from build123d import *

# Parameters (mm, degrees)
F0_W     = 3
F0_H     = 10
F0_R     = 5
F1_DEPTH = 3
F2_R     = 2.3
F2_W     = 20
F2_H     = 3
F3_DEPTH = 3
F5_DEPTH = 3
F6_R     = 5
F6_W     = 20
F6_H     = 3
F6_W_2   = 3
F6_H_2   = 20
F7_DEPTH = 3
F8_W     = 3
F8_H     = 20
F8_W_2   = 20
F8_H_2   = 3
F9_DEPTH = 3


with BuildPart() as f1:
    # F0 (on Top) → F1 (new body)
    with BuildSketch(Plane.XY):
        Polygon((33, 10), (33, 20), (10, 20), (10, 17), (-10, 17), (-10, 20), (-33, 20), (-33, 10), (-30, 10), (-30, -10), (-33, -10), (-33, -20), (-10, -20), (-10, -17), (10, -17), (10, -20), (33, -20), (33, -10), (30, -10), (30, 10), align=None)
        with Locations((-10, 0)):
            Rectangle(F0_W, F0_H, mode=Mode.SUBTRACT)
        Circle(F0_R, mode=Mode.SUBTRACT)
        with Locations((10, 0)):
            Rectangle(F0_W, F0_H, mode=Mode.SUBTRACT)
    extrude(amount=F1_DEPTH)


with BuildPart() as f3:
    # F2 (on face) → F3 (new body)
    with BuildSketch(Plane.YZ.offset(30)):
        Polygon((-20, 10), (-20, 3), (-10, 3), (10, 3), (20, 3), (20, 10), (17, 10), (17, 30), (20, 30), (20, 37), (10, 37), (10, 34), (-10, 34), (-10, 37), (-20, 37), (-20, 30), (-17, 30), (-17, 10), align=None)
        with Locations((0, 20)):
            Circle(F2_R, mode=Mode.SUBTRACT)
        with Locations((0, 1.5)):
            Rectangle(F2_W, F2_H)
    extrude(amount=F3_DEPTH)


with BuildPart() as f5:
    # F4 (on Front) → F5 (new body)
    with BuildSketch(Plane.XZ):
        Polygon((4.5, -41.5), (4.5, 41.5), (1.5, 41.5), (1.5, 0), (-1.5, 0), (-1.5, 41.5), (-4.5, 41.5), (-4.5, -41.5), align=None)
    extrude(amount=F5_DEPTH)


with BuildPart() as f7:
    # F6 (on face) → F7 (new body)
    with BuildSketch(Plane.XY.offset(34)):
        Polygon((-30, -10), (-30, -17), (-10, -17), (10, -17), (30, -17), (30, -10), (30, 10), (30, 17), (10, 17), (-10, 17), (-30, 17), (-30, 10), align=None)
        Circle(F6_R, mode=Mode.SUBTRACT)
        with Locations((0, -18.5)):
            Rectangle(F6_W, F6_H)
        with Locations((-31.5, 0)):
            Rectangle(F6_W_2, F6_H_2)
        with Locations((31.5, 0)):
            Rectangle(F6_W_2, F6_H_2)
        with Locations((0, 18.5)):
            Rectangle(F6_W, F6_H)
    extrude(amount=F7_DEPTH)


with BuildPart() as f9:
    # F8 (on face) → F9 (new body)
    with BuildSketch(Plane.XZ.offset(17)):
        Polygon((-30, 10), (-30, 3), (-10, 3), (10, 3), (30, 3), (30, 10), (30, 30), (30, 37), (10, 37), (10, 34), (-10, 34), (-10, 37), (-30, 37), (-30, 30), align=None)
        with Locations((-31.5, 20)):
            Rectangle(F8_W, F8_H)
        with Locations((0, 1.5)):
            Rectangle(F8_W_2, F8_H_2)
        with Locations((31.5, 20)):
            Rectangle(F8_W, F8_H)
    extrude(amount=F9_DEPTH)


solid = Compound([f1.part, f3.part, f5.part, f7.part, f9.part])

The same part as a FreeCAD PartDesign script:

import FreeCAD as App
import Part
import Sketcher
from FreeCAD import Vector


def add_polygon(sketch, points):
    """Adds a closed chain of lines whose ends are joined by coincident constraints."""
    first, n = sketch.GeometryCount, len(points)
    for a, b in zip(points, points[1:] + points[:1]):
        sketch.addGeometry(Part.LineSegment(App.Vector(*a, 0), App.Vector(*b, 0)), False)
    for i in range(n):
        sketch.addConstraint(Sketcher.Constraint("Coincident", first + i, 2, first + (i + 1) % n, 1))

doc = App.newDocument("Part")
params = doc.addObject("Spreadsheet::Sheet", "Params")
for row, (alias, value) in enumerate([
    ("sketch1_diameter", "10 mm"),
    ("sketch1_width", "23 mm"),
    ("sketch1_width2", "20 mm"),
    ("sketch1_width3", "3 mm"),
    ("sketch1_height", "10 mm"),
    ("pad1_length", "3 mm"),
    ("sketch2_diameter", "4.6 mm"),
    ("sketch2_width", "10 mm"),
    ("sketch2_width2", "20 mm"),
    ("sketch2_width3", "3 mm"),
    ("sketch2_height", "7 mm"),
    ("pad2_length", "3 mm"),
    ("sketch3_width", "3 mm"),
    ("sketch3_height", "83 mm"),
    ("pad3_length", "3 mm"),
    ("sketch4_diameter", "10 mm"),
    ("sketch4_width", "20 mm"),
    ("sketch4_width2", "3 mm"),
    ("sketch4_height", "7 mm"),
    ("pad4_length", "3 mm"),
    ("sketch5_width", "20 mm"),
    ("sketch5_width2", "3 mm"),
    ("sketch5_height", "7 mm"),
    ("pad5_length", "3 mm"),
], start=1):
    params.set(f"A{row}", alias)
    params.set(f"B{row}", "=" + value)
    params.setAlias(f"B{row}", alias)

body = doc.addObject("PartDesign::Body", "Body")

sketch1 = body.newObject("Sketcher::SketchObject", "Sketch")
sketch1.AttachmentSupport = (doc.getObject("XY_Plane"), [""])
sketch1.MapMode = "FlatFace"
add_polygon(sketch1, [(33, 10), (33, 20), (10, 20), (10, 17), (-10, 17), (-10, 20), (-33, 20), (-33, 10), (-30, 10), (-30, -10), (-33, -10), (-33, -20), (-10, -20), (-10, -17), (10, -17), (10, -20), (33, -20), (33, -10), (30, -10), (30, 10)])
add_polygon(sketch1, [(-8.5, -5), (-11.5, -5), (-11.5, 5), (-8.5, 5)])
sketch1.addGeometry(Part.Circle(Vector(0, 0, 0), Vector(0, 0, 1), 5), False)
add_polygon(sketch1, [(11.5, -5), (8.5, -5), (8.5, 5), (11.5, 5)])
sketch1.addConstraint([
    Sketcher.Constraint("Vertical", 0),
    Sketcher.Constraint("Horizontal", 1),
    Sketcher.Constraint("Vertical", 2),
    Sketcher.Constraint("Horizontal", 3),
    Sketcher.Constraint("Vertical", 4),
    Sketcher.Constraint("Horizontal", 5),
    Sketcher.Constraint("Vertical", 6),
    Sketcher.Constraint("Horizontal", 7),
    Sketcher.Constraint("Vertical", 8),
    Sketcher.Constraint("Horizontal", 9),
    Sketcher.Constraint("Vertical", 10),
    Sketcher.Constraint("Horizontal", 11),
    Sketcher.Constraint("Vertical", 12),
    Sketcher.Constraint("Horizontal", 13),
    Sketcher.Constraint("Vertical", 14),
    Sketcher.Constraint("Horizontal", 15),
    Sketcher.Constraint("Vertical", 16),
    Sketcher.Constraint("Horizontal", 17),
    Sketcher.Constraint("Vertical", 18),
    Sketcher.Constraint("Horizontal", 19),
    Sketcher.Constraint("Horizontal", 20),
    Sketcher.Constraint("Vertical", 21),
    Sketcher.Constraint("Horizontal", 22),
    Sketcher.Constraint("Vertical", 23),
    Sketcher.Constraint("Horizontal", 25),
    Sketcher.Constraint("Vertical", 26),
    Sketcher.Constraint("Horizontal", 27),
    Sketcher.Constraint("Vertical", 28),
    Sketcher.Constraint("Coincident", 24, 3, -1, 1),
    Sketcher.Constraint("Symmetric", 0, 2, 10, 2, -1, 1),
    Sketcher.Constraint("Symmetric", 2, 2, 12, 2, -1, 1),
    Sketcher.Constraint("Symmetric", 4, 2, 14, 2, -1, 1),
    Sketcher.Constraint("Symmetric", 6, 2, 16, 2, -1, 1),
    Sketcher.Constraint("Symmetric", 8, 2, 18, 2, -1, 1),
    Sketcher.Constraint("Symmetric", 22, 2, 25, 2, -1, 1),
    Sketcher.Constraint("Symmetric", 20, 2, 27, 2, -1, 1),
    Sketcher.Constraint("Symmetric", 1, 2, 4, 2, -2),
    Sketcher.Constraint("Symmetric", 9, 2, 16, 2, -2),
    Sketcher.Constraint("Horizontal", 23, 2, 25, 2),
    Sketcher.Constraint("Equal", 19, 20),
    Sketcher.Constraint("Equal", 27, 2),
    Sketcher.Constraint("Equal", 13, 8),
    Sketcher.Constraint("Equal", 16, 21),
    Sketcher.Constraint("Diameter", 24, 10.0),
    Sketcher.Constraint("DistanceX", 1, 2, 1, 1, 23.0),
    Sketcher.Constraint("DistanceX", 3, 2, 3, 1, 20.0),
    Sketcher.Constraint("DistanceX", 7, 1, 7, 2, 3.0),
    Sketcher.Constraint("DistanceY", 0, 1, 0, 2, 10.0),
    Sketcher.Constraint("DistanceX", 23, 2, 25, 2, 17.0),
])
sketch1.setExpression("Constraints[71]", "Params.sketch1_diameter")
sketch1.setExpression("Constraints[72]", "Params.sketch1_width")
sketch1.setExpression("Constraints[73]", "Params.sketch1_width2")
sketch1.setExpression("Constraints[74]", "Params.sketch1_width3")
sketch1.setExpression("Constraints[75]", "Params.sketch1_height")
pad1 = body.newObject("PartDesign::Pad", "Pad")
pad1.Profile = sketch1
pad1.setExpression("Length", "Params.pad1_length")
body2 = doc.addObject("PartDesign::Body", "Body001")

sketch2 = body2.newObject("Sketcher::SketchObject", "Sketch001")
sketch2.AttachmentSupport = (doc.getObject("YZ_Plane001"), [""])
sketch2.MapMode = "FlatFace"
sketch2.AttachmentOffset = App.Placement(Vector(0, 0, 30), App.Rotation())
add_polygon(sketch2, [(-20, 10), (-20, 3), (-10, 3), (-10, 0), (10, 0), (10, 3), (20, 3), (20, 10), (17, 10), (17, 30), (20, 30), (20, 37), (10, 37), (10, 34), (-10, 34), (-10, 37), (-20, 37), (-20, 30), (-17, 30), (-17, 10)])
sketch2.addGeometry(Part.Circle(Vector(0, 20, 0), Vector(0, 0, 1), 2.3), False)
sketch2.addConstraint([
    Sketcher.Constraint("Vertical", 0),
    Sketcher.Constraint("Horizontal", 1),
    Sketcher.Constraint("Vertical", 2),
    Sketcher.Constraint("Horizontal", 3),
    Sketcher.Constraint("Vertical", 4),
    Sketcher.Constraint("Horizontal", 5),
    Sketcher.Constraint("Vertical", 6),
    Sketcher.Constraint("Horizontal", 7),
    Sketcher.Constraint("Vertical", 8),
    Sketcher.Constraint("Horizontal", 9),
    Sketcher.Constraint("Vertical", 10),
    Sketcher.Constraint("Horizontal", 11),
    Sketcher.Constraint("Vertical", 12),
    Sketcher.Constraint("Horizontal", 13),
    Sketcher.Constraint("Vertical", 14),
    Sketcher.Constraint("Horizontal", 15),
    Sketcher.Constraint("Vertical", 16),
    Sketcher.Constraint("Horizontal", 17),
    Sketcher.Constraint("Vertical", 18),
    Sketcher.Constraint("Horizontal", 19),
    Sketcher.Constraint("Symmetric", 2, 2, 3, 2, -1, 1),
    Sketcher.Constraint("Symmetric", 0, 2, 5, 2, -2),
    Sketcher.Constraint("Symmetric", 11, 2, 14, 2, -2),
    Sketcher.Constraint("Symmetric", 9, 2, 16, 2, -2),
    Sketcher.Constraint("Symmetric", 7, 2, 18, 2, -2),
    Sketcher.Constraint("PointOnObject", 20, 3, -2),
    Sketcher.Constraint("Vertical", 6, 2, 9, 2),
    Sketcher.Constraint("Vertical", 4, 2, 11, 2),
    Sketcher.Constraint("Equal", 19, 2),
    Sketcher.Constraint("Equal", 13, 8),
    Sketcher.Constraint("Equal", 6, 10),
    Sketcher.Constraint("Equal", 4, 12),
    Sketcher.Constraint("Diameter", 20, 4.6),
    Sketcher.Constraint("DistanceX", 1, 1, 1, 2, 10.0),
    Sketcher.Constraint("DistanceX", 3, 1, 3, 2, 20.0),
    Sketcher.Constraint("DistanceX", 7, 2, 7, 1, 3.0),
    Sketcher.Constraint("DistanceY", 0, 2, 0, 1, 7.0),
    Sketcher.Constraint("DistanceY", -1, 1, 20, 3, 20.0),
])
sketch2.setExpression("Constraints[52]", "Params.sketch2_diameter")
sketch2.setExpression("Constraints[53]", "Params.sketch2_width")
sketch2.setExpression("Constraints[54]", "Params.sketch2_width2")
sketch2.setExpression("Constraints[55]", "Params.sketch2_width3")
sketch2.setExpression("Constraints[56]", "Params.sketch2_height")
pad2 = body2.newObject("PartDesign::Pad", "Pad001")
pad2.Profile = sketch2
pad2.setExpression("Length", "Params.pad2_length")
body3 = doc.addObject("PartDesign::Body", "Body002")

sketch3 = body3.newObject("Sketcher::SketchObject", "Sketch002")
sketch3.AttachmentSupport = (doc.getObject("XZ_Plane002"), [""])
sketch3.MapMode = "FlatFace"
add_polygon(sketch3, [(4.5, -41.5), (4.5, 41.5), (1.5, 41.5), (1.5, 0), (-1.5, 0), (-1.5, 41.5), (-4.5, 41.5), (-4.5, -41.5)])
sketch3.addConstraint([
    Sketcher.Constraint("Vertical", 0),
    Sketcher.Constraint("Horizontal", 1),
    Sketcher.Constraint("Vertical", 2),
    Sketcher.Constraint("Horizontal", 3),
    Sketcher.Constraint("Vertical", 4),
    Sketcher.Constraint("Horizontal", 5),
    Sketcher.Constraint("Vertical", 6),
    Sketcher.Constraint("Horizontal", 7),
    Sketcher.Constraint("Symmetric", 2, 2, 3, 2, -1, 1),
    Sketcher.Constraint("Symmetric", 0, 2, 6, 2, -1, 1),
    Sketcher.Constraint("Horizontal", 1, 2, 4, 2),
    Sketcher.Constraint("Equal", 1, 3),
    Sketcher.Constraint("DistanceX", 1, 2, 1, 1, 3.0),
    Sketcher.Constraint("DistanceY", 0, 1, 0, 2, 83.0),
])
sketch3.setExpression("Constraints[20]", "Params.sketch3_width")
sketch3.setExpression("Constraints[21]", "Params.sketch3_height")
pad3 = body3.newObject("PartDesign::Pad", "Pad002")
pad3.Profile = sketch3
pad3.setExpression("Length", "Params.pad3_length")
body4 = doc.addObject("PartDesign::Body", "Body003")

sketch4 = body4.newObject("Sketcher::SketchObject", "Sketch003")
sketch4.AttachmentSupport = (doc.getObject("XY_Plane003"), [""])
sketch4.MapMode = "FlatFace"
sketch4.AttachmentOffset = App.Placement(Vector(0, 0, 34), App.Rotation())
add_polygon(sketch4, [(-30, -17), (-10, -17), (-10, -20), (10, -20), (10, -17), (30, -17), (30, -10), (33, -10), (33, 10), (30, 10), (30, 17), (10, 17), (10, 20), (-10, 20), (-10, 17), (-30, 17), (-30, 10), (-33, 10), (-33, -10), (-30, -10)])
sketch4.addGeometry(Part.Circle(Vector(0, 0, 0), Vector(0, 0, 1), 5), False)
sketch4.addConstraint([
    Sketcher.Constraint("Horizontal", 0),
    Sketcher.Constraint("Vertical", 1),
    Sketcher.Constraint("Horizontal", 2),
    Sketcher.Constraint("Vertical", 3),
    Sketcher.Constraint("Horizontal", 4),
    Sketcher.Constraint("Vertical", 5),
    Sketcher.Constraint("Horizontal", 6),
    Sketcher.Constraint("Vertical", 7),
    Sketcher.Constraint("Horizontal", 8),
    Sketcher.Constraint("Vertical", 9),
    Sketcher.Constraint("Horizontal", 10),
    Sketcher.Constraint("Vertical", 11),
    Sketcher.Constraint("Horizontal", 12),
    Sketcher.Constraint("Vertical", 13),
    Sketcher.Constraint("Horizontal", 14),
    Sketcher.Constraint("Vertical", 15),
    Sketcher.Constraint("Horizontal", 16),
    Sketcher.Constraint("Vertical", 17),
    Sketcher.Constraint("Horizontal", 18),
    Sketcher.Constraint("Vertical", 19),
    Sketcher.Constraint("Coincident", 20, 3, -1, 1),
    Sketcher.Constraint("Symmetric", 0, 2, 10, 2, -1, 1),
    Sketcher.Constraint("Symmetric", 2, 2, 12, 2, -1, 1),
    Sketcher.Constraint("Symmetric", 4, 2, 14, 2, -1, 1),
    Sketcher.Constraint("Symmetric", 6, 2, 16, 2, -1, 1),
    Sketcher.Constraint("Symmetric", 8, 2, 18, 2, -1, 1),
    Sketcher.Constraint("Symmetric", 0, 2, 3, 2, -2),
    Sketcher.Constraint("Symmetric", 8, 2, 15, 2, -2),
    Sketcher.Constraint("Equal", 0, 2),
    Sketcher.Constraint("Equal", 18, 1),
    Sketcher.Constraint("Equal", 14, 7),
    Sketcher.Constraint("Diameter", 20, 10.0),
    Sketcher.Constraint("DistanceX", 0, 1, 0, 2, 20.0),
    Sketcher.Constraint("DistanceX", 6, 1, 6, 2, 3.0),
    Sketcher.Constraint("DistanceY", 5, 1, 5, 2, 7.0),
])
sketch4.setExpression("Constraints[51]", "Params.sketch4_diameter")
sketch4.setExpression("Constraints[52]", "Params.sketch4_width")
sketch4.setExpression("Constraints[53]", "Params.sketch4_width2")
sketch4.setExpression("Constraints[54]", "Params.sketch4_height")
pad4 = body4.newObject("PartDesign::Pad", "Pad003")
pad4.Profile = sketch4
pad4.setExpression("Length", "Params.pad4_length")
body5 = doc.addObject("PartDesign::Body", "Body004")

sketch5 = body5.newObject("Sketcher::SketchObject", "Sketch004")
sketch5.AttachmentSupport = (doc.getObject("XZ_Plane004"), [""])
sketch5.MapMode = "FlatFace"
sketch5.AttachmentOffset = App.Placement(Vector(0, 0, 17), App.Rotation())
add_polygon(sketch5, [(-30, 3), (-10, 3), (-10, 0), (10, 0), (10, 3), (30, 3), (30, 10), (33, 10), (33, 30), (30, 30), (30, 37), (10, 37), (10, 34), (-10, 34), (-10, 37), (-30, 37), (-30, 30), (-33, 30), (-33, 10), (-30, 10)])
sketch5.addConstraint([
    Sketcher.Constraint("Horizontal", 0),
    Sketcher.Constraint("Vertical", 1),
    Sketcher.Constraint("Horizontal", 2),
    Sketcher.Constraint("Vertical", 3),
    Sketcher.Constraint("Horizontal", 4),
    Sketcher.Constraint("Vertical", 5),
    Sketcher.Constraint("Horizontal", 6),
    Sketcher.Constraint("Vertical", 7),
    Sketcher.Constraint("Horizontal", 8),
    Sketcher.Constraint("Vertical", 9),
    Sketcher.Constraint("Horizontal", 10),
    Sketcher.Constraint("Vertical", 11),
    Sketcher.Constraint("Horizontal", 12),
    Sketcher.Constraint("Vertical", 13),
    Sketcher.Constraint("Horizontal", 14),
    Sketcher.Constraint("Vertical", 15),
    Sketcher.Constraint("Horizontal", 16),
    Sketcher.Constraint("Vertical", 17),
    Sketcher.Constraint("Horizontal", 18),
    Sketcher.Constraint("Vertical", 19),
    Sketcher.Constraint("Symmetric", 1, 2, 2, 2, -1, 1),
    Sketcher.Constraint("Symmetric", 10, 2, 13, 2, -2),
    Sketcher.Constraint("Symmetric", 8, 2, 15, 2, -2),
    Sketcher.Constraint("Symmetric", 6, 2, 17, 2, -2),
    Sketcher.Constraint("Symmetric", 4, 2, 19, 2, -2),
    Sketcher.Constraint("Vertical", 5, 2, 8, 2),
    Sketcher.Constraint("Vertical", 3, 2, 10, 2),
    Sketcher.Constraint("Equal", 0, 2),
    Sketcher.Constraint("Equal", 18, 1),
    Sketcher.Constraint("Equal", 14, 7),
    Sketcher.Constraint("Equal", 5, 9),
    Sketcher.Constraint("Equal", 3, 11),
    Sketcher.Constraint("DistanceX", 0, 1, 0, 2, 20.0),
    Sketcher.Constraint("DistanceX", 6, 1, 6, 2, 3.0),
    Sketcher.Constraint("DistanceY", 5, 1, 5, 2, 7.0),
])
sketch5.setExpression("Constraints[52]", "Params.sketch5_width")
sketch5.setExpression("Constraints[53]", "Params.sketch5_width2")
sketch5.setExpression("Constraints[54]", "Params.sketch5_height")
pad5 = body5.newObject("PartDesign::Pad", "Pad004")
pad5.Profile = sketch5
pad5.setExpression("Length", "Params.pad5_length")

doc.recompute()
